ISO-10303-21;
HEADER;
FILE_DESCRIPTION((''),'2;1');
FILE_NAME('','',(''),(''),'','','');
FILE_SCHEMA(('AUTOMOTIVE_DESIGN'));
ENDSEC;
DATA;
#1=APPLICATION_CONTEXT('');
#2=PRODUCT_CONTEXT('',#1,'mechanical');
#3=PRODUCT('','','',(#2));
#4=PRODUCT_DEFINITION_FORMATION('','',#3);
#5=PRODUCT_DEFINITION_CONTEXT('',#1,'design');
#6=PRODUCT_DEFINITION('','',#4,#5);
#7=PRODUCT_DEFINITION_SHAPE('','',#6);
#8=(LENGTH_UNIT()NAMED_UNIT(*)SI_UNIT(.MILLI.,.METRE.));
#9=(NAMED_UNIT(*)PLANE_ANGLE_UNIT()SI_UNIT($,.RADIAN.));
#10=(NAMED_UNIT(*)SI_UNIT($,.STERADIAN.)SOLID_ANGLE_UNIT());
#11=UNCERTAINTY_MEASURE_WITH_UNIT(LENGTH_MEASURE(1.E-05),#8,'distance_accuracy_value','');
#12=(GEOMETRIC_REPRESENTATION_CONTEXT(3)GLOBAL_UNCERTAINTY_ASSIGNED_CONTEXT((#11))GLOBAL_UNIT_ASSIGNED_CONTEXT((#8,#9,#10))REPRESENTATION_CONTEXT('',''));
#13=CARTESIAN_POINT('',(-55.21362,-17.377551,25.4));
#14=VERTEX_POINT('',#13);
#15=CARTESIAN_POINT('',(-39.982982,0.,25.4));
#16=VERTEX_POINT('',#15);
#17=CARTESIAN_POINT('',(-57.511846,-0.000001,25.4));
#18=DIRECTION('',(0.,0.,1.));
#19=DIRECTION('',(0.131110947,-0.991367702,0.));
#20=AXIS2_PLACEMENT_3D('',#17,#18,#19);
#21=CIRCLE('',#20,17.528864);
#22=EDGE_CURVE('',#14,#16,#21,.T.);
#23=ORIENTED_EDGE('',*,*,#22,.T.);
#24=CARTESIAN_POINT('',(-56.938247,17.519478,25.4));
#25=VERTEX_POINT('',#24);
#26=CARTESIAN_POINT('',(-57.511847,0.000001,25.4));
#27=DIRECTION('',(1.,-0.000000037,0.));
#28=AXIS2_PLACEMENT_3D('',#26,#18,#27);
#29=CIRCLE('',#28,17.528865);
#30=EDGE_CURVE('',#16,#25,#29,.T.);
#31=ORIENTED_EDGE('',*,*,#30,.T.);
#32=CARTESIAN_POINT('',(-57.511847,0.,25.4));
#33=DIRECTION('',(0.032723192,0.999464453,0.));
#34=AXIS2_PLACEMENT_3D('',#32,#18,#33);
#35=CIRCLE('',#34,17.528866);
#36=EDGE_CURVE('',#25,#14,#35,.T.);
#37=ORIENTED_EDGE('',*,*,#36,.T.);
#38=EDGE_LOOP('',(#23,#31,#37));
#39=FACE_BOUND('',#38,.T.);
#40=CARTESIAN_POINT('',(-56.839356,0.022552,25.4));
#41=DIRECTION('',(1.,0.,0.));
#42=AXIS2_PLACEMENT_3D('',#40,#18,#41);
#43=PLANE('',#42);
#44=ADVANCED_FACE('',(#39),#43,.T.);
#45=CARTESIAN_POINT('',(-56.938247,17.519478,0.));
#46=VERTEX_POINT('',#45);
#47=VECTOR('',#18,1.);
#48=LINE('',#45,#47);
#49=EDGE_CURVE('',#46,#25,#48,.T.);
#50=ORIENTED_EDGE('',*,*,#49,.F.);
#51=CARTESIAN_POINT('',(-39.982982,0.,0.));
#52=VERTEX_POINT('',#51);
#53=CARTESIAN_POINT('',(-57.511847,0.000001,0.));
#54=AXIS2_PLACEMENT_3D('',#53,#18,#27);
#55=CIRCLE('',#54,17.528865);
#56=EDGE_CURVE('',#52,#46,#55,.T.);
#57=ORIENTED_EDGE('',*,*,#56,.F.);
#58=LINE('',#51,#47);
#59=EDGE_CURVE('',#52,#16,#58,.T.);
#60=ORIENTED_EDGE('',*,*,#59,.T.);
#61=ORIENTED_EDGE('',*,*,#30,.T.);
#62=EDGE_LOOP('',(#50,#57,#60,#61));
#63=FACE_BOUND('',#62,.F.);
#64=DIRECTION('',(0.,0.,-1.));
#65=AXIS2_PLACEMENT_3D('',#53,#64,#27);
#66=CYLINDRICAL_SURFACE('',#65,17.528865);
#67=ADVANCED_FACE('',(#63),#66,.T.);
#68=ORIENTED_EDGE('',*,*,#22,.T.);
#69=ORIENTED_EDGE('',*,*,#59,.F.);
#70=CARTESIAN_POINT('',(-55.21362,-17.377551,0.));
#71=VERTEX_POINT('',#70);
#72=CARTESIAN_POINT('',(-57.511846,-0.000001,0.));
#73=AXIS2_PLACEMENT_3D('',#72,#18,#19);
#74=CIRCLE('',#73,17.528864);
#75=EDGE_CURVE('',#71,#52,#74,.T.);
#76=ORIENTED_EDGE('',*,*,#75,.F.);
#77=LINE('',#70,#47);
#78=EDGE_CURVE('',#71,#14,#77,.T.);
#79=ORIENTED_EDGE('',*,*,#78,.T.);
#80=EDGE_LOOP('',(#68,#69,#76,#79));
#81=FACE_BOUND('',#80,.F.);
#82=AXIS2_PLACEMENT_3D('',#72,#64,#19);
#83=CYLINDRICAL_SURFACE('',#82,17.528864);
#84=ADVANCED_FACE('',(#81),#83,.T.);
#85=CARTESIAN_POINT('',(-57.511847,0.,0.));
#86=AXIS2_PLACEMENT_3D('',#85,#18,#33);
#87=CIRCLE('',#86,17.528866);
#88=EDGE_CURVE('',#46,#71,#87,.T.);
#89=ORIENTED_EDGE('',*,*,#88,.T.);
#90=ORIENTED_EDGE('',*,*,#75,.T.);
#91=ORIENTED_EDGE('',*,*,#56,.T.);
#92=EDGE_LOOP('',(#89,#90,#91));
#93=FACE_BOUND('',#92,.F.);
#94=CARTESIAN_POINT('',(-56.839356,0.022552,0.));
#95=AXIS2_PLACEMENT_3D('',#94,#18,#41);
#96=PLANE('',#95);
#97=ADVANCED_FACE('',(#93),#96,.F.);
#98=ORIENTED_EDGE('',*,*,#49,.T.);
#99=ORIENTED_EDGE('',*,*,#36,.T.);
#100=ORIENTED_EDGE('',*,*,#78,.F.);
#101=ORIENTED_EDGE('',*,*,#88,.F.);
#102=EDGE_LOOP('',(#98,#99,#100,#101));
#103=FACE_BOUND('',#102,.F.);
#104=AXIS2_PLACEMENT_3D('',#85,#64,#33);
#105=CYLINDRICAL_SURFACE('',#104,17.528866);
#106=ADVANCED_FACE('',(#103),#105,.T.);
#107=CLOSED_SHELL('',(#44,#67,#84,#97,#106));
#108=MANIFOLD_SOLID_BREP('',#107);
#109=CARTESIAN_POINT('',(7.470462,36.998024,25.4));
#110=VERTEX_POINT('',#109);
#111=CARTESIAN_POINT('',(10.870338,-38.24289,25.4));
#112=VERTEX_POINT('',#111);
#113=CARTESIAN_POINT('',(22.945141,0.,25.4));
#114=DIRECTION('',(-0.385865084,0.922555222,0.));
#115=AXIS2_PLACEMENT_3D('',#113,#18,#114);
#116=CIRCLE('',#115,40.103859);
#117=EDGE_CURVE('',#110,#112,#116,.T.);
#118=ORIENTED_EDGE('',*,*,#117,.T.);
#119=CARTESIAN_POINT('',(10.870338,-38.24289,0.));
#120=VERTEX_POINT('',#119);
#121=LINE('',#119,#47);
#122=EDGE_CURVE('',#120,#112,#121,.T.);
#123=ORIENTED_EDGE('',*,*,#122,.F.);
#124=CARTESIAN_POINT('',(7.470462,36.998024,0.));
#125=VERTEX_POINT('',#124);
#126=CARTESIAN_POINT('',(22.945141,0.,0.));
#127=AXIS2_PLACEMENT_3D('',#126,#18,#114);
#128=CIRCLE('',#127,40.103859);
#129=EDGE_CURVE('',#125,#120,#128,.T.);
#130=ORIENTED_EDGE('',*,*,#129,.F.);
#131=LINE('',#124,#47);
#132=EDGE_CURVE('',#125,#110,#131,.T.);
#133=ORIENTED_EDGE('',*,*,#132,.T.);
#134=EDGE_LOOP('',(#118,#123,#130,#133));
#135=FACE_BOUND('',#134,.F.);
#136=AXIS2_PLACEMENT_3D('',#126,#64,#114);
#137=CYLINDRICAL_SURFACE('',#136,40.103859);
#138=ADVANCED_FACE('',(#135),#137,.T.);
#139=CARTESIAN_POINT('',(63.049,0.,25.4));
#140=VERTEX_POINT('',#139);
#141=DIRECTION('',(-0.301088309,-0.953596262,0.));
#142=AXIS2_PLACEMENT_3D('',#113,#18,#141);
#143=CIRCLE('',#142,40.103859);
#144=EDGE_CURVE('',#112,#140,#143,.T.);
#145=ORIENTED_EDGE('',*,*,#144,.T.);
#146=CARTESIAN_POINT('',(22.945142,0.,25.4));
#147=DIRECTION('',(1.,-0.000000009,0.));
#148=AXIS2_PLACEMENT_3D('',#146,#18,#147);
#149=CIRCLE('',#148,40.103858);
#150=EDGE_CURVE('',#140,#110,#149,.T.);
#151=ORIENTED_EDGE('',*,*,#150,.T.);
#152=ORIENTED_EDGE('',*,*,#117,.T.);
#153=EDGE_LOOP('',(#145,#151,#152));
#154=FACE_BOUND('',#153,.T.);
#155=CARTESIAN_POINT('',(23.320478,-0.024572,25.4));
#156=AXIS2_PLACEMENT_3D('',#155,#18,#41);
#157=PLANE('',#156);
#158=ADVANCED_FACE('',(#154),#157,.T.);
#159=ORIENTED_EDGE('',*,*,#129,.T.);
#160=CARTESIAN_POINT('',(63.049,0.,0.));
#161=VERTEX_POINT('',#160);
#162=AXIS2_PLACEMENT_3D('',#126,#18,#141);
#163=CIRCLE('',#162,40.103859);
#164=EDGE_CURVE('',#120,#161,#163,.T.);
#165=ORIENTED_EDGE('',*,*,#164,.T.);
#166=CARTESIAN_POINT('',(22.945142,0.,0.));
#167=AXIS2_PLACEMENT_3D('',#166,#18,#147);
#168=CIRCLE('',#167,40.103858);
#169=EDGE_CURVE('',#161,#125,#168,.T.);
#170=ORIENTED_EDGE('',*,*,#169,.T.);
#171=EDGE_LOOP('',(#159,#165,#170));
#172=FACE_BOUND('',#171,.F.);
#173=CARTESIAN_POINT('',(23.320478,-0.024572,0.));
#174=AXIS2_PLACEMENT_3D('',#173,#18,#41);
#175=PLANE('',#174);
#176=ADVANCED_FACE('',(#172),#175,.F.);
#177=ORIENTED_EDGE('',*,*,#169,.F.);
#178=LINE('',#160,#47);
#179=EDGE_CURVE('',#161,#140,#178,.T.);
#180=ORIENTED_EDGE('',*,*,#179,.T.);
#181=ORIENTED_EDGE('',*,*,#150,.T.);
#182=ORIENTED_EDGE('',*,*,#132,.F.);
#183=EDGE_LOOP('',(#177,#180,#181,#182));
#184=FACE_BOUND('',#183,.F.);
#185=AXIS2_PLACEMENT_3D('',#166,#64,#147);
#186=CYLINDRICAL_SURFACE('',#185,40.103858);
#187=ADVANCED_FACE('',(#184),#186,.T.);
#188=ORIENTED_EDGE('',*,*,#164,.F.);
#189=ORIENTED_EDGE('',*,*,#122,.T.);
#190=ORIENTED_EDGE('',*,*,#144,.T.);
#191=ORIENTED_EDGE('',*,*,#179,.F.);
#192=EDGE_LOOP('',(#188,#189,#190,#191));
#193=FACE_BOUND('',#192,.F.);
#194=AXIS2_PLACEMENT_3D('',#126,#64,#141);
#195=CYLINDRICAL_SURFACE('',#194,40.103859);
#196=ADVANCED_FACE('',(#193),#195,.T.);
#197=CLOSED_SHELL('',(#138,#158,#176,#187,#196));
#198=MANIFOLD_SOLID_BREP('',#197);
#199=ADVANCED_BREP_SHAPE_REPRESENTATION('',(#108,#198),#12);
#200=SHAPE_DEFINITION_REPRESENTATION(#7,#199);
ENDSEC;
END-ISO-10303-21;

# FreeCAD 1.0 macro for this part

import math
import FreeCAD as App
import Part
import Sketcher
from FreeCAD import Vector
Q = App.Units.Quantity

doc = App.newDocument("Part")
body = doc.addObject("PartDesign::Body", "Body")
body.AllowCompound = True

sketch1 = body.newObject("Sketcher::SketchObject", "Sketch")
sketch1.AttachmentSupport = (doc.getObject("XY_Plane"), [""])
sketch1.MapMode = "FlatFace"
sketch1.addGeometry(Part.ArcOfCircle(Part.Circle(Vector(-58, 0, 0), Vector(0, 0, 1), 18), math.radians(-82), math.radians(0)), False)
sketch1.addGeometry(Part.ArcOfCircle(Part.Circle(Vector(-58, 0, 0), Vector(0, 0, 1), 18), math.radians(0), math.radians(88)), False)
sketch1.addGeometry(Part.ArcOfCircle(Part.Circle(Vector(-58, 0, 0), Vector(0, 0, 1), 18), math.radians(88), math.radians(278)), False)
sketch1.addGeometry(Part.ArcOfCircle(Part.Circle(Vector(23, 0, 0), Vector(0, 0, 1), 40), math.radians(0), math.radians(113)), False)
sketch1.addGeometry(Part.ArcOfCircle(Part.Circle(Vector(23, 0, 0), Vector(0, 0, 1), 40), math.radians(113), math.radians(252)), False)
sketch1.addGeometry(Part.ArcOfCircle(Part.Circle(Vector(23, 0, 0), Vector(0, 0, 1), 40), math.radians(-108), math.radians(0)), False)
sketch1.addConstraint(Sketcher.Constraint("Tangent", 0, 2, 1, 1))
sketch1.addConstraint(Sketcher.Constraint("Tangent", 1, 2, 2, 1))
sketch1.addConstraint(Sketcher.Constraint("Tangent", 2, 2, 0, 1))
sketch1.addConstraint(Sketcher.Constraint("Tangent", 3, 2, 4, 1))
sketch1.addConstraint(Sketcher.Constraint("Tangent", 4, 2, 5, 1))
sketch1.addConstraint(Sketcher.Constraint("Tangent", 5, 2, 3, 1))
sketch1.addConstraint(Sketcher.Constraint("PointOnObject", 0, 3, -1))
sketch1.addConstraint(Sketcher.Constraint("PointOnObject", 3, 3, -1))
sketch1.addConstraint(Sketcher.Constraint("PointOnObject", 0, 2, -1))
sketch1.addConstraint(Sketcher.Constraint("PointOnObject", 5, 2, -1))
sketch1.addConstraint(Sketcher.Constraint("Radius", 3, Q("40.103858 mm")))
sketch1.addConstraint(Sketcher.Constraint("Radius", 0, Q("17.528864 mm")))
sketch1.addConstraint(Sketcher.Constraint("DistanceX", -1, 1, 5, 2, Q("63.049 mm")))
sketch1.addConstraint(Sketcher.Constraint("DistanceX", 1, 3, 1, 2, Q("0.5736 mm")))
sketch1.addConstraint(Sketcher.Constraint("DistanceX", 2, 2, -1, 1, Q("55.21362 mm")))
sketch1.addConstraint(Sketcher.Constraint("DistanceY", 2, 2, -1, 1, Q("17.377551 mm")))
sketch1.addConstraint(Sketcher.Constraint("DistanceX", -1, 1, 4, 2, Q("10.870338 mm")))
sketch1.addConstraint(Sketcher.Constraint("DistanceX", 3, 2, 3, 3, Q("15.47468 mm")))
pad1 = body.newObject("PartDesign::Pad", "Pad")
pad1.Profile = sketch1
pad1.Length = Q("1 in")

doc.recompute()
